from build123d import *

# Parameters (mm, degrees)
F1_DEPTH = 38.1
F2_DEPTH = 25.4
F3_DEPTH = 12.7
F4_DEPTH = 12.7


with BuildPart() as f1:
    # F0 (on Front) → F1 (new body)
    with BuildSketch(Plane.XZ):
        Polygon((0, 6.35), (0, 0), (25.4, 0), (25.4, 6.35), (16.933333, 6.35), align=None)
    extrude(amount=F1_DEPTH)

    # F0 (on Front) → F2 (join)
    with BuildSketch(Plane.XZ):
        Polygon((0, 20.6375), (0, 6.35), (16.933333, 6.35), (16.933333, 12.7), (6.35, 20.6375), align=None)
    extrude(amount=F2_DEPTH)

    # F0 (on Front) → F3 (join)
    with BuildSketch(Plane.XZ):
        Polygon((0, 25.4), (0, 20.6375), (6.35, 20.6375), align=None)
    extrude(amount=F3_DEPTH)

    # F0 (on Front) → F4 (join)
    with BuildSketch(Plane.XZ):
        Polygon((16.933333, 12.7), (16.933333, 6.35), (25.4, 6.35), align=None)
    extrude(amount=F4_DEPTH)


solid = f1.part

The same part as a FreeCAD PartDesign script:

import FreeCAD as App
import Part
import Sketcher
Q = App.Units.Quantity


def add_polygon(sketch, points):
    """Adds a closed chain of lines whose ends are joined by coincident constraints."""
    first, n = sketch.GeometryCount, len(points)
    for a, b in zip(points, points[1:] + points[:1]):
        sketch.addGeometry(Part.LineSegment(App.Vector(*a, 0), App.Vector(*b, 0)), False)
    for i in range(n):
        sketch.addConstraint(Sketcher.Constraint("Coincident", first + i, 2, first + (i + 1) % n, 1))

doc = App.newDocument("Part")
body = doc.addObject("PartDesign::Body", "Body")

# Sketch on XZ plane
sketch1 = doc.addObject("Sketcher::SketchObject", "Sketch")
body.addObject(sketch1)
sketch1.AttachmentSupport = (doc.XZ_Plane, [""])
sketch1.MapMode = "FlatFace"
add_polygon(sketch1, [(0, 6), (0, 0), (25, 0), (25, 6)])  # lines 0-3
sketch1.addConstraint([
    Sketcher.Constraint("Vertical", 0),
    Sketcher.Constraint("Horizontal", 1),
    Sketcher.Constraint("Vertical", 2),
    Sketcher.Constraint("Horizontal", 3),
    Sketcher.Constraint("Coincident", 0, 2, -1, 1),
    Sketcher.Constraint("DistanceX", 1, 1, 1, 2, Q("1 in")),
    Sketcher.Constraint("DistanceY", 0, 2, 0, 1, Q("0.25 in")),
])
pad1 = doc.addObject("PartDesign::Pad", "Pad")
body.addObject(pad1)
pad1.Profile = sketch1
pad1.Length = Q("1.5 in")

# Sketch on XZ plane
sketch2 = doc.addObject("Sketcher::SketchObject", "Sketch001")
body.addObject(sketch2)
sketch2.AttachmentSupport = (doc.XZ_Plane, [""])
sketch2.MapMode = "FlatFace"
add_polygon(sketch2, [(0, 21), (0, 6), (17, 6), (17, 13), (6, 21)])  # lines 0-4
sketch2.addConstraint([
    Sketcher.Constraint("Vertical", 0),
    Sketcher.Constraint("Horizontal", 1),
    Sketcher.Constraint("Vertical", 2),
    Sketcher.Constraint("Horizontal", 4),
    Sketcher.Constraint("PointOnObject", 0, 2, -2),
    Sketcher.Constraint("Equal", 4, 2),
    Sketcher.Constraint("DistanceX", 4, 2, 4, 1, Q("0.25 in")),
    Sketcher.Constraint("DistanceY", -1, 1, 2, 2, Q("0.5 in")),
    Sketcher.Constraint("DistanceY", 0, 2, 0, 1, Q("0.5625 in")),
    Sketcher.Constraint("DistanceX", 1, 1, 1, 2, 16.933333),
])
pad2 = doc.addObject("PartDesign::Pad", "Pad001")
body.addObject(pad2)
pad2.Profile = sketch2
pad2.Length = Q("1 in")

# Sketch on XZ plane
sketch3 = doc.addObject("Sketcher::SketchObject", "Sketch002")
body.addObject(sketch3)
sketch3.AttachmentSupport = (doc.XZ_Plane, [""])
sketch3.MapMode = "FlatFace"
add_polygon(sketch3, [(0, 25.4), (0, 20.6), (6.3, 20.6)])  # lines 0-2
sketch3.addConstraint([
    Sketcher.Constraint("Vertical", 0),
    Sketcher.Constraint("Horizontal", 1),
    Sketcher.Constraint("PointOnObject", 0, 2, -2),
    Sketcher.Constraint("DistanceY", -1, 1, 2, 2, Q("1 in")),
    Sketcher.Constraint("DistanceX", 1, 1, 1, 2, Q("0.25 in")),
    Sketcher.Constraint("DistanceY", 0, 2, 0, 1, Q("0.1875 in")),
])
pad3 = doc.addObject("PartDesign::Pad", "Pad002")
body.addObject(pad3)
pad3.Profile = sketch3
pad3.Length = Q("0.5 in")

# Sketch on XZ plane
sketch4 = doc.addObject("Sketcher::SketchObject", "Sketch003")
body.addObject(sketch4)
sketch4.AttachmentSupport = (doc.XZ_Plane, [""])
sketch4.MapMode = "FlatFace"
add_polygon(sketch4, [(17, 13), (17, 6), (25, 6)])  # lines 0-2
sketch4.addConstraint([
    Sketcher.Constraint("Vertical", 0),
    Sketcher.Constraint("Horizontal", 1),
    Sketcher.Constraint("DistanceX", -1, 1, 1, 2, Q("1 in")),
    Sketcher.Constraint("DistanceY", 0, 2, 0, 1, Q("0.25 in")),
    Sketcher.Constraint("DistanceY", -1, 1, 2, 2, Q("0.5 in")),
    Sketcher.Constraint("DistanceX", 1, 1, 1, 2, 8.466667),
])
pad4 = doc.addObject("PartDesign::Pad", "Pad003")
body.addObject(pad4)
pad4.Profile = sketch4
pad4.Length = Q("0.5 in")

doc.recompute()
